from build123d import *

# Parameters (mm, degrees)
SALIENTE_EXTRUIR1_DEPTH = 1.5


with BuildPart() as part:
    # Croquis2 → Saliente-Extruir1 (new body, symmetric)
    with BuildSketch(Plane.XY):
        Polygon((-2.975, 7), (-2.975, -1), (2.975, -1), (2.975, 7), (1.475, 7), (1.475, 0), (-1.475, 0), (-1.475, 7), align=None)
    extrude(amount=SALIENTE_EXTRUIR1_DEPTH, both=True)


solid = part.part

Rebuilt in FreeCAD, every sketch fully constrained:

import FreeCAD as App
import Part
import Sketcher
from FreeCAD import Vector

doc = App.newDocument("Part")
body = doc.addObject("PartDesign::Body", "Body")

sketch1 = body.newObject("Sketcher::SketchObject", "Sketch")
sketch1.AttachmentSupport = (doc.getObject("XY_Plane"), [""])
sketch1.MapMode = "FlatFace"
sketch1.addGeometry([
    Part.LineSegment(Vector(-3, 7, 0), Vector(-3, -1, 0)),
    Part.LineSegment(Vector(-3, -1, 0), Vector(3, -1, 0)),
    Part.LineSegment(Vector(3, -1, 0), Vector(3, 7, 0)),
    Part.LineSegment(Vector(3, 7, 0), Vector(1.5, 7, 0)),
    Part.LineSegment(Vector(1.5, 7, 0), Vector(1.5, 0, 0)),
    Part.LineSegment(Vector(1.5, 0, 0), Vector(-1.5, 0, 0)),
    Part.LineSegment(Vector(-1.5, 0, 0), Vector(-1.5, 7, 0)),
    Part.LineSegment(Vector(-1.5, 7, 0), Vector(-3, 7, 0)),
], False)
sketch1.addConstraint([
    Sketcher.Constraint("Coincident", 0, 2, 1, 1),
    Sketcher.Constraint("Coincident", 1, 2, 2, 1),
    Sketcher.Constraint("Coincident", 2, 2, 3, 1),
    Sketcher.Constraint("Coincident", 3, 2, 4, 1),
    Sketcher.Constraint("Coincident", 4, 2, 5, 1),
    Sketcher.Constraint("Coincident", 5, 2, 6, 1),
    Sketcher.Constraint("Coincident", 6, 2, 7, 1),
    Sketcher.Constraint("Coincident", 7, 2, 0, 1),
    Sketcher.Constraint("Vertical", 0),
    Sketcher.Constraint("Horizontal", 1),
    Sketcher.Constraint("Vertical", 2),
    Sketcher.Constraint("Horizontal", 3),
    Sketcher.Constraint("Vertical", 4),
    Sketcher.Constraint("Horizontal", 5),
    Sketcher.Constraint("Vertical", 6),
    Sketcher.Constraint("Horizontal", 7),
    Sketcher.Constraint("Symmetric", 4, 2, 5, 2, -1, 1),
    Sketcher.Constraint("Symmetric", 2, 2, 7, 2, -2),
    Sketcher.Constraint("DistanceY", 0, 2, 0, 1, 8.0),
    Sketcher.Constraint("DistanceY", 4, 2, 4, 1, 7.0),
    Sketcher.Constraint("DistanceX", 3, 2, 3, 1, 1.5),
    Sketcher.Constraint("DistanceX", 1, 1, 1, 2, 5.95),
])
pad1 = body.newObject("PartDesign::Pad", "Pad")
pad1.Profile = sketch1
pad1.Length = 3
pad1.Midplane = True

doc.recompute()
